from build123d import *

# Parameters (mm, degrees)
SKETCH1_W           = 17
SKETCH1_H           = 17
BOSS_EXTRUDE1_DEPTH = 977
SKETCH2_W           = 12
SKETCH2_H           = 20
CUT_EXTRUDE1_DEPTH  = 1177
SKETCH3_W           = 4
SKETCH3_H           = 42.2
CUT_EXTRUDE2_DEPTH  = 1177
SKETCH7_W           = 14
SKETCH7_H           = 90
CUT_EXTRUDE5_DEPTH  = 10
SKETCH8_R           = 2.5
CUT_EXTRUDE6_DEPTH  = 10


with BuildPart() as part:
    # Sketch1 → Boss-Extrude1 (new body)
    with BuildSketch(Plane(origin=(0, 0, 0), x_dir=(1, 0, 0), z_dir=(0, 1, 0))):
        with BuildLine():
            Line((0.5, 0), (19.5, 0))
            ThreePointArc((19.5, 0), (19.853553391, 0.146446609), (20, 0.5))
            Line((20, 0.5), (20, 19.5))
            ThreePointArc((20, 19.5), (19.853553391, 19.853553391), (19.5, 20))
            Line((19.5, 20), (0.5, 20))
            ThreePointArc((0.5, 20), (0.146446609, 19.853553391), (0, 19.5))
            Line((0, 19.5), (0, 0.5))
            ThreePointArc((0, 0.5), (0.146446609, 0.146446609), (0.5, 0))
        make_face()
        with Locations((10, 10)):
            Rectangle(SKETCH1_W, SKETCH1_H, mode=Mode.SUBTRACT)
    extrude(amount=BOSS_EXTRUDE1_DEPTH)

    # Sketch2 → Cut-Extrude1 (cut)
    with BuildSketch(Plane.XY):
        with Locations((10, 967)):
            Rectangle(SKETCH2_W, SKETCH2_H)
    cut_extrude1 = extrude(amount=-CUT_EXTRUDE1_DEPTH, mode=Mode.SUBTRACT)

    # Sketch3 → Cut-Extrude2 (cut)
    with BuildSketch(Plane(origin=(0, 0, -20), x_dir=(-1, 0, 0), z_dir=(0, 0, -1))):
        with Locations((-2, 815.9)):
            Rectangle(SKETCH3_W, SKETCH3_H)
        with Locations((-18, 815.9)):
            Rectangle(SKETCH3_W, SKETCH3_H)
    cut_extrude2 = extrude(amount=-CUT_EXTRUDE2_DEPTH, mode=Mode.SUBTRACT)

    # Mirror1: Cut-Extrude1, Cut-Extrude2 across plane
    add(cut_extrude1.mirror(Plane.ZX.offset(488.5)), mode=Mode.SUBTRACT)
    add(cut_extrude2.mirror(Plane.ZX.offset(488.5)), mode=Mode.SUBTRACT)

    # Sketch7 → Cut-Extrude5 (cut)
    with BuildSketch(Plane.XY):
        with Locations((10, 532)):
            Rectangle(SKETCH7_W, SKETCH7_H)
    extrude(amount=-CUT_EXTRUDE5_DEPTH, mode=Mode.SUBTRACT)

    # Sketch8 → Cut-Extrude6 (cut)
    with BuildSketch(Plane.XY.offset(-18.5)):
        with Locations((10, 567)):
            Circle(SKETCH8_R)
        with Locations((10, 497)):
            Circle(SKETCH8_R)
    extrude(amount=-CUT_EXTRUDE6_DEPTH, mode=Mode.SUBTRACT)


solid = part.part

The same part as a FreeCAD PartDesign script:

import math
import FreeCAD as App
import Part
import Sketcher
Q = App.Units.Quantity

doc = App.newDocument("Part")
params = doc.addObject("Spreadsheet::Sheet", "Params")
for row, (alias, value) in enumerate([
    ("sketch1_radius", "0.5 mm"),
    ("sketch1_width", "19 mm"),
    ("sketch1_width2", "17 mm"),
    ("pad1_length", "977 mm"),
    ("sketch2_width", "12 mm"),
    ("sketch2_height", "20 mm"),
    ("pocket1_length", "1177 mm"),
    ("sketch3_width", "4 mm"),
    ("sketch3_height", "42.2 mm"),
    ("pocket2_length", "1177 mm"),
    ("sketch4_width", "14 mm"),
    ("sketch4_height", "90 mm"),
    ("pocket3_length", "10 mm"),
    ("sketch5_diameter", "5 mm"),
    ("pocket4_length", "10 mm"),
], start=1):
    params.set(f"A{row}", alias)
    params.set(f"B{row}", "=" + value)
    params.setAlias(f"B{row}", alias)

body = doc.addObject("PartDesign::Body", "Body")

# Sketch on XZ plane
sketch1 = body.newObject("Sketcher::SketchObject", "Sketch")
sketch1.AttachmentSupport = (doc.getObject("XZ_Plane"), [""])
sketch1.MapMode = "FlatFace"
sketch1.addGeometry(Part.LineSegment(App.Vector(0.5, 0, 0), App.Vector(19.5, 0, 0)), False)
sketch1.addGeometry(Part.ArcOfCircle(Part.Circle(App.Vector(19.5, -0.5, 0), App.Vector(0, 0, 1), 0.5), math.radians(0), math.radians(90)), False)
sketch1.addGeometry(Part.LineSegment(App.Vector(20, -0.5, 0), App.Vector(20, -19.5, 0)), False)
sketch1.addGeometry(Part.ArcOfCircle(Part.Circle(App.Vector(19.5, -19.5, 0), App.Vector(0, 0, 1), 0.5), math.radians(-90), math.radians(0)), False)
sketch1.addGeometry(Part.LineSegment(App.Vector(19.5, -20, 0), App.Vector(0.5, -20, 0)), False)
sketch1.addGeometry(Part.ArcOfCircle(Part.Circle(App.Vector(0.5, -19.5, 0), App.Vector(0, 0, 1), 0.5), math.radians(180), math.radians(270)), False)
sketch1.addGeometry(Part.LineSegment(App.Vector(0, -19.5, 0), App.Vector(0, -0.5, 0)), False)
sketch1.addGeometry(Part.ArcOfCircle(Part.Circle(App.Vector(0.5, -0.5, 0), App.Vector(0, 0, 1), 0.5), math.radians(90), math.radians(180)), False)
sketch1.addGeometry(Part.LineSegment(App.Vector(18.5, -1.5, 0), App.Vector(1.5, -1.5, 0)), False)
sketch1.addGeometry(Part.LineSegment(App.Vector(1.5, -1.5, 0), App.Vector(1.5, -18.5, 0)), False)
sketch1.addGeometry(Part.LineSegment(App.Vector(1.5, -18.5, 0), App.Vector(18.5, -18.5, 0)), False)
sketch1.addGeometry(Part.LineSegment(App.Vector(18.5, -18.5, 0), App.Vector(18.5, -1.5, 0)), False)
sketch1.addConstraint(Sketcher.Constraint("Tangent", 0, 2, 1, 2))
sketch1.addConstraint(Sketcher.Constraint("Tangent", 1, 1, 2, 1))
sketch1.addConstraint(Sketcher.Constraint("Tangent", 2, 2, 3, 2))
sketch1.addConstraint(Sketcher.Constraint("Tangent", 3, 1, 4, 1))
sketch1.addConstraint(Sketcher.Constraint("Tangent", 4, 2, 5, 2))
sketch1.addConstraint(Sketcher.Constraint("Tangent", 5, 1, 6, 1))
sketch1.addConstraint(Sketcher.Constraint("Tangent", 6, 2, 7, 2))
sketch1.addConstraint(Sketcher.Constraint("Tangent", 7, 1, 0, 1))
sketch1.addConstraint(Sketcher.Constraint("Coincident", 8, 2, 9, 1))
sketch1.addConstraint(Sketcher.Constraint("Coincident", 9, 2, 10, 1))
sketch1.addConstraint(Sketcher.Constraint("Coincident", 10, 2, 11, 1))
sketch1.addConstraint(Sketcher.Constraint("Coincident", 11, 2, 8, 1))
sketch1.addConstraint(Sketcher.Constraint("Horizontal", 0))
sketch1.addConstraint(Sketcher.Constraint("Vertical", 2))
sketch1.addConstraint(Sketcher.Constraint("Horizontal", 4))
sketch1.addConstraint(Sketcher.Constraint("Vertical", 6))
sketch1.addConstraint(Sketcher.Constraint("Horizontal", 8))
sketch1.addConstraint(Sketcher.Constraint("Vertical", 9))
sketch1.addConstraint(Sketcher.Constraint("Horizontal", 10))
sketch1.addConstraint(Sketcher.Constraint("Vertical", 11))
sketch1.addConstraint(Sketcher.Constraint("Equal", 1, 3))
sketch1.addConstraint(Sketcher.Constraint("Equal", 3, 5))
sketch1.addConstraint(Sketcher.Constraint("Equal", 5, 7))
sketch1.addConstraint(Sketcher.Constraint("PointOnObject", 0, 2, -1))
sketch1.addConstraint(Sketcher.Constraint("PointOnObject", 5, 1, -2))
sketch1.addConstraint(Sketcher.Constraint("Equal", 4, 2))
sketch1.addConstraint(Sketcher.Constraint("Equal", 10, 9))
sketch1.addConstraint(Sketcher.Constraint("Radius", 1, Q("0.5 mm")))
sketch1.addConstraint(Sketcher.Constraint("DistanceX", 0, 1, 0, 2, Q("19 mm")))
sketch1.addConstraint(Sketcher.Constraint("DistanceX", 8, 2, 8, 1, Q("17 mm")))
sketch1.addConstraint(Sketcher.Constraint("DistanceX", 7, 3, 8, 2, Q("1 mm")))
sketch1.addConstraint(Sketcher.Constraint("DistanceY", 8, 2, 7, 3, Q("1 mm")))
sketch1.setExpression("Constraints[27]", "Params.sketch1_radius")
sketch1.setExpression("Constraints[28]", "Params.sketch1_width")
sketch1.setExpression("Constraints[29]", "Params.sketch1_width2")
pad1 = body.newObject("PartDesign::Pad", "Pad")
pad1.Profile = sketch1
pad1.setExpression("Length", "Params.pad1_length")
pad1.Reversed = True

# Sketch on XY plane
sketch2 = body.newObject("Sketcher::SketchObject", "Sketch001")
sketch2.AttachmentSupport = (doc.getObject("XY_Plane"), [""])
sketch2.MapMode = "FlatFace"
sketch2.addGeometry(Part.LineSegment(App.Vector(4, 977, 0), App.Vector(4, 957, 0)), False)
sketch2.addGeometry(Part.LineSegment(App.Vector(4, 957, 0), App.Vector(16, 957, 0)), False)
sketch2.addGeometry(Part.LineSegment(App.Vector(16, 957, 0), App.Vector(16, 977, 0)), False)
sketch2.addGeometry(Part.LineSegment(App.Vector(16, 977, 0), App.Vector(4, 977, 0)), False)
sketch2.addConstraint(Sketcher.Constraint("Coincident", 0, 2, 1, 1))
sketch2.addConstraint(Sketcher.Constraint("Coincident", 1, 2, 2, 1))
sketch2.addConstraint(Sketcher.Constraint("Coincident", 2, 2, 3, 1))
sketch2.addConstraint(Sketcher.Constraint("Coincident", 3, 2, 0, 1))
sketch2.addConstraint(Sketcher.Constraint("Vertical", 0))
sketch2.addConstraint(Sketcher.Constraint("Horizontal", 1))
sketch2.addConstraint(Sketcher.Constraint("Vertical", 2))
sketch2.addConstraint(Sketcher.Constraint("Horizontal", 3))
sketch2.addConstraint(Sketcher.Constraint("DistanceX", 1, 1, 1, 2, Q("12 mm")))
sketch2.addConstraint(Sketcher.Constraint("DistanceY", 0, 2, 0, 1, Q("20 mm")))
sketch2.addConstraint(Sketcher.Constraint("DistanceX", -1, 1, 0, 2, Q("4 mm")))
sketch2.addConstraint(Sketcher.Constraint("DistanceY", -1, 1, 0, 2, Q("957 mm")))
sketch2.setExpression("Constraints[8]", "Params.sketch2_width")
sketch2.setExpression("Constraints[9]", "Params.sketch2_height")
pocket1 = body.newObject("PartDesign::Pocket", "Pocket")
pocket1.Profile = sketch2
pocket1.setExpression("Length", "Params.pocket1_length")

# Sketch on XY plane
sketch3 = body.newObject("Sketcher::SketchObject", "Sketch002")
sketch3.AttachmentSupport = (doc.getObject("XY_Plane"), [""])
sketch3.MapMode = "FlatFace"
sketch3.AttachmentOffset = App.Placement(App.Vector(0, 0, -20), App.Rotation())
sketch3.addGeometry(Part.LineSegment(App.Vector(4, 837, 0), App.Vector(4, 794.8, 0)), False)
sketch3.addGeometry(Part.LineSegment(App.Vector(4, 794.8, 0), App.Vector(0, 794.8, 0)), False)
sketch3.addGeometry(Part.LineSegment(App.Vector(0, 794.8, 0), App.Vector(0, 837, 0)), False)
sketch3.addGeometry(Part.LineSegment(App.Vector(0, 837, 0), App.Vector(4, 837, 0)), False)
sketch3.addGeometry(Part.LineSegment(App.Vector(20, 837, 0), App.Vector(20, 794.8, 0)), False)
sketch3.addGeometry(Part.LineSegment(App.Vector(20, 794.8, 0), App.Vector(16, 794.8, 0)), False)
sketch3.addGeometry(Part.LineSegment(App.Vector(16, 794.8, 0), App.Vector(16, 837, 0)), False)
sketch3.addGeometry(Part.LineSegment(App.Vector(16, 837, 0), App.Vector(20, 837, 0)), False)
sketch3.addConstraint(Sketcher.Constraint("Coincident", 0, 2, 1, 1))
sketch3.addConstraint(Sketcher.Constraint("Coincident", 1, 2, 2, 1))
sketch3.addConstraint(Sketcher.Constraint("Coincident", 2, 2, 3, 1))
sketch3.addConstraint(Sketcher.Constraint("Coincident", 3, 2, 0, 1))
sketch3.addConstraint(Sketcher.Constraint("Coincident", 4, 2, 5, 1))
sketch3.addConstraint(Sketcher.Constraint("Coincident", 5, 2, 6, 1))
sketch3.addConstraint(Sketcher.Constraint("Coincident", 6, 2, 7, 1))
sketch3.addConstraint(Sketcher.Constraint("Coincident", 7, 2, 4, 1))
sketch3.addConstraint(Sketcher.Constraint("Vertical", 0))
sketch3.addConstraint(Sketcher.Constraint("Horizontal", 1))
sketch3.addConstraint(Sketcher.Constraint("Vertical", 2))
sketch3.addConstraint(Sketcher.Constraint("Horizontal", 3))
sketch3.addConstraint(Sketcher.Constraint("Vertical", 4))
sketch3.addConstraint(Sketcher.Constraint("Horizontal", 5))
sketch3.addConstraint(Sketcher.Constraint("Vertical", 6))
sketch3.addConstraint(Sketcher.Constraint("Horizontal", 7))
sketch3.addConstraint(Sketcher.Constraint("PointOnObject", 1, 2, -2))
sketch3.addConstraint(Sketcher.Constraint("Horizontal", 1, 2, 4, 2))
sketch3.addConstraint(Sketcher.Constraint("Horizontal", 3, 2, 6, 2))
sketch3.addConstraint(Sketcher.Constraint("Equal", 3, 5))
sketch3.addConstraint(Sketcher.Constraint("DistanceX", 1, 2, 1, 1, Q("4 mm")))
sketch3.addConstraint(Sketcher.Constraint("DistanceY", 0, 2, 0, 1, Q("42.2 mm")))
sketch3.addConstraint(Sketcher.Constraint("DistanceY", -1, 1, 2, 2, Q("837 mm")))
sketch3.addConstraint(Sketcher.Constraint("DistanceX", -1, 1, 4, 2, Q("20 mm")))
sketch3.setExpression("Constraints[20]", "Params.sketch3_width")
sketch3.setExpression("Constraints[21]", "Params.sketch3_height")
pocket2 = body.newObject("PartDesign::Pocket", "Pocket001")
pocket2.Profile = sketch3
pocket2.setExpression("Length", "Params.pocket2_length")
pocket2.Reversed = True
doc.recompute()

datumplane = body.newObject("PartDesign::Plane", "DatumPlane")
datumplane.AttachmentSupport = (doc.getObject("XZ_Plane"), [""])
datumplane.MapMode = "FlatFace"
datumplane.AttachmentOffset = App.Placement(App.Vector(0, 0, -488.5), App.Rotation())
mirrored = body.newObject("PartDesign::Mirrored", "Mirrored")
mirrored.Originals = [pocket1, pocket2]
mirrored.MirrorPlane = (datumplane, [""])
body.Tip = mirrored

# Sketch on XY plane
sketch4 = body.newObject("Sketcher::SketchObject", "Sketch003")
sketch4.AttachmentSupport = (doc.getObject("XY_Plane"), [""])
sketch4.MapMode = "FlatFace"
sketch4.addGeometry(Part.LineSegment(App.Vector(3, 577, 0), App.Vector(3, 487, 0)), False)
sketch4.addGeometry(Part.LineSegment(App.Vector(3, 487, 0), App.Vector(17, 487, 0)), False)
sketch4.addGeometry(Part.LineSegment(App.Vector(17, 487, 0), App.Vector(17, 577, 0)), False)
sketch4.addGeometry(Part.LineSegment(App.Vector(17, 577, 0), App.Vector(3, 577, 0)), False)
sketch4.addConstraint(Sketcher.Constraint("Coincident", 0, 2, 1, 1))
sketch4.addConstraint(Sketcher.Constraint("Coincident", 1, 2, 2, 1))
sketch4.addConstraint(Sketcher.Constraint("Coincident", 2, 2, 3, 1))
sketch4.addConstraint(Sketcher.Constraint("Coincident", 3, 2, 0, 1))
sketch4.addConstraint(Sketcher.Constraint("Vertical", 0))
sketch4.addConstraint(Sketcher.Constraint("Horizontal", 1))
sketch4.addConstraint(Sketcher.Constraint("Vertical", 2))
sketch4.addConstraint(Sketcher.Constraint("Horizontal", 3))
sketch4.addConstraint(Sketcher.Constraint("DistanceX", 1, 1, 1, 2, Q("14 mm")))
sketch4.addConstraint(Sketcher.Constraint("DistanceY", 0, 2, 0, 1, Q("90 mm")))
sketch4.addConstraint(Sketcher.Constraint("DistanceX", -1, 1, 0, 2, Q("3 mm")))
sketch4.addConstraint(Sketcher.Constraint("DistanceY", -1, 1, 0, 2, Q("487 mm")))
sketch4.setExpression("Constraints[8]", "Params.sketch4_width")
sketch4.setExpression("Constraints[9]", "Params.sketch4_height")
pocket3 = body.newObject("PartDesign::Pocket", "Pocket002")
pocket3.Profile = sketch4
pocket3.setExpression("Length", "Params.pocket3_length")

# Sketch on XY plane
sketch5 = body.newObject("Sketcher::SketchObject", "Sketch004")
sketch5.AttachmentSupport = (doc.getObject("XY_Plane"), [""])
sketch5.MapMode = "FlatFace"
sketch5.AttachmentOffset = App.Placement(App.Vector(0, 0, -18.5), App.Rotation())
sketch5.addGeometry(Part.Circle(App.Vector(10, 567, 0), App.Vector(0, 0, 1), 2.5), False)
sketch5.addGeometry(Part.Circle(App.Vector(10, 497, 0), App.Vector(0, 0, 1), 2.5), False)
sketch5.addConstraint(Sketcher.Constraint("Equal", 0, 1))
sketch5.addConstraint(Sketcher.Constraint("Vertical", 0, 3, 1, 3))
sketch5.addConstraint(Sketcher.Constraint("Diameter", 0, Q("5 mm")))
sketch5.addConstraint(Sketcher.Constraint("DistanceX", -1, 1, 0, 3, Q("10 mm")))
sketch5.addConstraint(Sketcher.Constraint("DistanceY", -1, 1, 0, 3, Q("567 mm")))
sketch5.addConstraint(Sketcher.Constraint("DistanceY", -1, 1, 1, 3, Q("497 mm")))
sketch5.setExpression("Constraints[2]", "Params.sketch5_diameter")
pocket4 = body.newObject("PartDesign::Pocket", "Pocket003")
pocket4.Profile = sketch5
pocket4.setExpression("Length", "Params.pocket4_length")

doc.recompute()
